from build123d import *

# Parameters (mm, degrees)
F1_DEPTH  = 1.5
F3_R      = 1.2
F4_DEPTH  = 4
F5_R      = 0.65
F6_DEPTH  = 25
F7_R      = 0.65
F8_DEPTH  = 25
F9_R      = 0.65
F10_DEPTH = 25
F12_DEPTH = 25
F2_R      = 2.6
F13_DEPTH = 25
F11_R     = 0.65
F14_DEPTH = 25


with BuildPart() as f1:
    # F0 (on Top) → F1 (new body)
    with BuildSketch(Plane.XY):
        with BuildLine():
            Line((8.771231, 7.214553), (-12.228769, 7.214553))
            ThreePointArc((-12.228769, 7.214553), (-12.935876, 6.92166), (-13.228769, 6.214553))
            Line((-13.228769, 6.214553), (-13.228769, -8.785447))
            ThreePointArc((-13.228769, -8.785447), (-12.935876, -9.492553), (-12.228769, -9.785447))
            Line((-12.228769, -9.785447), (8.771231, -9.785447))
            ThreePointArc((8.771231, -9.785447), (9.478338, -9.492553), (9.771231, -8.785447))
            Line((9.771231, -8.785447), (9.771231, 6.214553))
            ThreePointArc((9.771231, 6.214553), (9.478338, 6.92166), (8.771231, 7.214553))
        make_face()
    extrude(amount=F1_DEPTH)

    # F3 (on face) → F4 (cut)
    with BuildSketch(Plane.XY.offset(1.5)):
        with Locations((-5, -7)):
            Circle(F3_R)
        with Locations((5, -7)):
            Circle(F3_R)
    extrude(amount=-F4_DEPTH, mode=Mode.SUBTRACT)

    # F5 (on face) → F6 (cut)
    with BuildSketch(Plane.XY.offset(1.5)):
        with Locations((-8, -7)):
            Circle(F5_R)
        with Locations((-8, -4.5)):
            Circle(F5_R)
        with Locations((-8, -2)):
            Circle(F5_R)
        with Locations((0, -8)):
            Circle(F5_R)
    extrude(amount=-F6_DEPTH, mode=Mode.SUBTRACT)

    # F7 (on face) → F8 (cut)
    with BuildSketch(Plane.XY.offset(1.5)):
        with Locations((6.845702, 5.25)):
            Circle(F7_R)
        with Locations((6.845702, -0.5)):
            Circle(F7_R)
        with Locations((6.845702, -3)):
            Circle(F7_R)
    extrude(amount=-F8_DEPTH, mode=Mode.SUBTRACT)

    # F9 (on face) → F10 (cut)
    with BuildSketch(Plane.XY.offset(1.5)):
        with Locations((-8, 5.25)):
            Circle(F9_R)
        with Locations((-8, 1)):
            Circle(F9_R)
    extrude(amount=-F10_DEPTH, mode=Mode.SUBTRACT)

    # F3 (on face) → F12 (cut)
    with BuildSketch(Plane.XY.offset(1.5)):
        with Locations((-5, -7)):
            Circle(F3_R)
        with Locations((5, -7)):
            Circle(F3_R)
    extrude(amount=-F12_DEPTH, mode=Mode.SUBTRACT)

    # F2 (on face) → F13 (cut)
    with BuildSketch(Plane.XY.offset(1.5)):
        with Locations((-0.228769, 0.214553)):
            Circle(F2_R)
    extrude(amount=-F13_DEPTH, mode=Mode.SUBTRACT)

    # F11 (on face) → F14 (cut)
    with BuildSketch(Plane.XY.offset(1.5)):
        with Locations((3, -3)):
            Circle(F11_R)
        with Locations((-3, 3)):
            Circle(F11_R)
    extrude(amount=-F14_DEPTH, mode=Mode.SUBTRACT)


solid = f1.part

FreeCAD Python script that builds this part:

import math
import FreeCAD as App
import Part
import Sketcher

doc = App.newDocument("Part")
body = doc.addObject("PartDesign::Body", "Body")

# Sketch on XY plane
sketch1 = doc.addObject("Sketcher::SketchObject", "Sketch")
body.addObject(sketch1)
sketch1.AttachmentSupport = (doc.XY_Plane, [""])
sketch1.MapMode = "FlatFace"
sketch1.addGeometry([
    Part.LineSegment(App.Vector(8.8, 7.2, 0), App.Vector(-12.2, 7.2, 0)),  # 0
    Part.ArcOfCircle(Part.Circle(App.Vector(-12.2, 6.2, 0), App.Vector(0, 0, 1), 1), math.radians(90), math.radians(180)),  # 1
    Part.LineSegment(App.Vector(-13.2, 6.2, 0), App.Vector(-13.2, -8.8, 0)),  # 2
    Part.ArcOfCircle(Part.Circle(App.Vector(-12.2, -8.8, 0), App.Vector(0, 0, 1), 1), math.radians(-180), math.radians(-90)),  # 3
    Part.LineSegment(App.Vector(-12.2, -9.8, 0), App.Vector(8.8, -9.8, 0)),  # 4
    Part.ArcOfCircle(Part.Circle(App.Vector(8.8, -8.8, 0), App.Vector(0, 0, 1), 1), math.radians(-90), math.radians(0)),  # 5
    Part.LineSegment(App.Vector(9.8, -8.8, 0), App.Vector(9.8, 6.2, 0)),  # 6
    Part.ArcOfCircle(Part.Circle(App.Vector(8.8, 6.2, 0), App.Vector(0, 0, 1), 1), math.radians(0), math.radians(90)),  # 7
], False)
sketch1.addConstraint([
    Sketcher.Constraint("Tangent", 0, 2, 1, 1),
    Sketcher.Constraint("Tangent", 1, 2, 2, 1),
    Sketcher.Constraint("Tangent", 2, 2, 3, 1),
    Sketcher.Constraint("Tangent", 3, 2, 4, 1),
    Sketcher.Constraint("Tangent", 4, 2, 5, 1),
    Sketcher.Constraint("Tangent", 5, 2, 6, 1),
    Sketcher.Constraint("Tangent", 6, 2, 7, 1),
    Sketcher.Constraint("Tangent", 7, 2, 0, 1),
    Sketcher.Constraint("Horizontal", 0),
    Sketcher.Constraint("Vertical", 2),
    Sketcher.Constraint("Horizontal", 4),
    Sketcher.Constraint("Vertical", 6),
    Sketcher.Constraint("Equal", 1, 3),
    Sketcher.Constraint("Equal", 3, 5),
    Sketcher.Constraint("Equal", 5, 7),
    Sketcher.Constraint("Radius", 1, 0.999999),
    Sketcher.Constraint("DistanceX", 0, 2, 0, 1, 21.0),
    Sketcher.Constraint("DistanceY", 2, 2, 2, 1, 15.0),
    Sketcher.Constraint("DistanceX", 1, 3, -1, 1, 12.22877),
    Sketcher.Constraint("DistanceY", -1, 1, 1, 3, 6.214554),
])
pad1 = doc.addObject("PartDesign::Pad", "Pad")
body.addObject(pad1)
pad1.Profile = sketch1
pad1.Length = 1.5

# Sketch on XY plane
sketch2 = doc.addObject("Sketcher::SketchObject", "Sketch001")
body.addObject(sketch2)
sketch2.AttachmentSupport = (doc.XY_Plane, [""])
sketch2.MapMode = "FlatFace"
sketch2.AttachmentOffset = App.Placement(App.Vector(0, 0, 1.5), App.Rotation())
sketch2.addGeometry([
    Part.Circle(App.Vector(-5, -7, 0), App.Vector(0, 0, 1), 1.2),
    Part.Circle(App.Vector(5, -7, 0), App.Vector(0, 0, 1), 1.2),
], False)
sketch2.addConstraint([
    Sketcher.Constraint("Equal", 0, 1),
    Sketcher.Constraint("Symmetric", 0, 3, 1, 3, -2),
    Sketcher.Constraint("Diameter", 0, 2.4),
    Sketcher.Constraint("DistanceX", 0, 3, -1, 1, 5.0),
    Sketcher.Constraint("DistanceY", 0, 3, -1, 1, 7.0),
])
pocket1 = doc.addObject("PartDesign::Pocket", "Pocket")
body.addObject(pocket1)
pocket1.Profile = sketch2
pocket1.Length = 4

# Sketch on XY plane
sketch3 = doc.addObject("Sketcher::SketchObject", "Sketch002")
body.addObject(sketch3)
sketch3.AttachmentSupport = (doc.XY_Plane, [""])
sketch3.MapMode = "FlatFace"
sketch3.AttachmentOffset = App.Placement(App.Vector(0, 0, 1.5), App.Rotation())
sketch3.addGeometry([
    Part.Circle(App.Vector(-8, -7, 0), App.Vector(0, 0, 1), 0.7),
    Part.Circle(App.Vector(-8, -4.5, 0), App.Vector(0, 0, 1), 0.7),
    Part.Circle(App.Vector(-8, -2, 0), App.Vector(0, 0, 1), 0.7),
    Part.Circle(App.Vector(0, -8, 0), App.Vector(0, 0, 1), 0.7),
], False)
sketch3.addConstraint([
    Sketcher.Constraint("Equal", 0, 1),
    Sketcher.Constraint("Equal", 1, 2),
    Sketcher.Constraint("Equal", 2, 3),
    Sketcher.Constraint("PointOnObject", 3, 3, -2),
    Sketcher.Constraint("Vertical", 0, 3, 1, 3),
    Sketcher.Constraint("Vertical", 1, 3, 2, 3),
    Sketcher.Constraint("Diameter", 0, 1.3),
    Sketcher.Constraint("DistanceX", 0, 3, -1, 1, 8.0),
    Sketcher.Constraint("DistanceY", 0, 3, -1, 1, 7.0),
    Sketcher.Constraint("DistanceY", 2, 3, -1, 1, 2.0),
    Sketcher.Constraint("DistanceY", 3, 3, -1, 1, 8.0),
    Sketcher.Constraint("DistanceY", 1, 3, -1, 1, 4.5),
])
pocket2 = doc.addObject("PartDesign::Pocket", "Pocket001")
body.addObject(pocket2)
pocket2.Profile = sketch3
pocket2.Length = 25

# Sketch on XY plane
sketch4 = doc.addObject("Sketcher::SketchObject", "Sketch003")
body.addObject(sketch4)
sketch4.AttachmentSupport = (doc.XY_Plane, [""])
sketch4.MapMode = "FlatFace"
sketch4.AttachmentOffset = App.Placement(App.Vector(0, 0, 1.5), App.Rotation())
sketch4.addGeometry([
    Part.Circle(App.Vector(6.8, 5.2, 0), App.Vector(0, 0, 1), 0.7),
    Part.Circle(App.Vector(6.8, -0.5, 0), App.Vector(0, 0, 1), 0.7),
    Part.Circle(App.Vector(6.8, -3, 0), App.Vector(0, 0, 1), 0.7),
], False)
sketch4.addConstraint([
    Sketcher.Constraint("Equal", 0, 1),
    Sketcher.Constraint("Equal", 1, 2),
    Sketcher.Constraint("Vertical", 0, 3, 1, 3),
    Sketcher.Constraint("Vertical", 1, 3, 2, 3),
    Sketcher.Constraint("Diameter", 0, 1.3),
    Sketcher.Constraint("DistanceY", 2, 3, -1, 1, 3.0),
    Sketcher.Constraint("DistanceY", 1, 3, -1, 1, 0.5),
    Sketcher.Constraint("DistanceY", -1, 1, 0, 3, 5.25),
    Sketcher.Constraint("DistanceX", -1, 1, 0, 3, 6.845702),
])
pocket3 = doc.addObject("PartDesign::Pocket", "Pocket002")
body.addObject(pocket3)
pocket3.Profile = sketch4
pocket3.Length = 25

# Sketch on XY plane
sketch5 = doc.addObject("Sketcher::SketchObject", "Sketch004")
body.addObject(sketch5)
sketch5.AttachmentSupport = (doc.XY_Plane, [""])
sketch5.MapMode = "FlatFace"
sketch5.AttachmentOffset = App.Placement(App.Vector(0, 0, 1.5), App.Rotation())
sketch5.addGeometry([
    Part.Circle(App.Vector(-8, 5.2, 0), App.Vector(0, 0, 1), 0.7),
    Part.Circle(App.Vector(-8, 1, 0), App.Vector(0, 0, 1), 0.7),
], False)
sketch5.addConstraint([
    Sketcher.Constraint("Equal", 0, 1),
    Sketcher.Constraint("Vertical", 0, 3, 1, 3),
    Sketcher.Constraint("Diameter", 0, 1.3),
    Sketcher.Constraint("DistanceX", 0, 3, -1, 1, 8.0),
    Sketcher.Constraint("DistanceY", -1, 1, 1, 3, 1.0),
    Sketcher.Constraint("DistanceY", -1, 1, 0, 3, 5.25),
])
pocket4 = doc.addObject("PartDesign::Pocket", "Pocket003")
body.addObject(pocket4)
pocket4.Profile = sketch5
pocket4.Length = 25

# Sketch on XY plane
sketch6 = doc.addObject("Sketcher::SketchObject", "Sketch005")
body.addObject(sketch6)
sketch6.AttachmentSupport = (doc.XY_Plane, [""])
sketch6.MapMode = "FlatFace"
sketch6.AttachmentOffset = App.Placement(App.Vector(0, 0, 1.5), App.Rotation())
sketch6.addGeometry([
    Part.Circle(App.Vector(-5, -7, 0), App.Vector(0, 0, 1), 1.2),
    Part.Circle(App.Vector(5, -7, 0), App.Vector(0, 0, 1), 1.2),
], False)
sketch6.addConstraint([
    Sketcher.Constraint("Equal", 0, 1),
    Sketcher.Constraint("Symmetric", 0, 3, 1, 3, -2),
    Sketcher.Constraint("Diameter", 0, 2.4),
    Sketcher.Constraint("DistanceX", 0, 3, -1, 1, 5.0),
    Sketcher.Constraint("DistanceY", 0, 3, -1, 1, 7.0),
])
pocket5 = doc.addObject("PartDesign::Pocket", "Pocket004")
body.addObject(pocket5)
pocket5.Profile = sketch6
pocket5.Length = 25

# Sketch on XY plane
sketch7 = doc.addObject("Sketcher::SketchObject", "Sketch006")
body.addObject(sketch7)
sketch7.AttachmentSupport = (doc.XY_Plane, [""])
sketch7.MapMode = "FlatFace"
sketch7.AttachmentOffset = App.Placement(App.Vector(0, 0, 1.5), App.Rotation())
sketch7.addGeometry(Part.Circle(App.Vector(-0.2, 0.2, 0), App.Vector(0, 0, 1), 2.6), False)
sketch7.addConstraint([
    Sketcher.Constraint("Diameter", 0, 5.2),
    Sketcher.Constraint("DistanceX", 0, 3, -1, 1, 0.228769),
    Sketcher.Constraint("DistanceY", -1, 1, 0, 3, 0.214553),
])
pocket6 = doc.addObject("PartDesign::Pocket", "Pocket005")
body.addObject(pocket6)
pocket6.Profile = sketch7
pocket6.Length = 25

# Sketch on XY plane
sketch8 = doc.addObject("Sketcher::SketchObject", "Sketch007")
body.addObject(sketch8)
sketch8.AttachmentSupport = (doc.XY_Plane, [""])
sketch8.MapMode = "FlatFace"
sketch8.AttachmentOffset = App.Placement(App.Vector(0, 0, 1.5), App.Rotation())
sketch8.addGeometry([
    Part.Circle(App.Vector(3, -3, 0), App.Vector(0, 0, 1), 0.7),
    Part.Circle(App.Vector(-3, 3, 0), App.Vector(0, 0, 1), 0.7),
], False)
sketch8.addConstraint([
    Sketcher.Constraint("Equal", 0, 1),
    Sketcher.Constraint("Symmetric", 0, 3, 1, 3, -1, 1),
    Sketcher.Constraint("Diameter", 0, 1.3),
    Sketcher.Constraint("DistanceX", -1, 1, 0, 3, 3.0),
    Sketcher.Constraint("DistanceY", 0, 3, -1, 1, 3.0),
])
pocket7 = doc.addObject("PartDesign::Pocket", "Pocket006")
body.addObject(pocket7)
pocket7.Profile = sketch8
pocket7.Length = 25

doc.recompute()
